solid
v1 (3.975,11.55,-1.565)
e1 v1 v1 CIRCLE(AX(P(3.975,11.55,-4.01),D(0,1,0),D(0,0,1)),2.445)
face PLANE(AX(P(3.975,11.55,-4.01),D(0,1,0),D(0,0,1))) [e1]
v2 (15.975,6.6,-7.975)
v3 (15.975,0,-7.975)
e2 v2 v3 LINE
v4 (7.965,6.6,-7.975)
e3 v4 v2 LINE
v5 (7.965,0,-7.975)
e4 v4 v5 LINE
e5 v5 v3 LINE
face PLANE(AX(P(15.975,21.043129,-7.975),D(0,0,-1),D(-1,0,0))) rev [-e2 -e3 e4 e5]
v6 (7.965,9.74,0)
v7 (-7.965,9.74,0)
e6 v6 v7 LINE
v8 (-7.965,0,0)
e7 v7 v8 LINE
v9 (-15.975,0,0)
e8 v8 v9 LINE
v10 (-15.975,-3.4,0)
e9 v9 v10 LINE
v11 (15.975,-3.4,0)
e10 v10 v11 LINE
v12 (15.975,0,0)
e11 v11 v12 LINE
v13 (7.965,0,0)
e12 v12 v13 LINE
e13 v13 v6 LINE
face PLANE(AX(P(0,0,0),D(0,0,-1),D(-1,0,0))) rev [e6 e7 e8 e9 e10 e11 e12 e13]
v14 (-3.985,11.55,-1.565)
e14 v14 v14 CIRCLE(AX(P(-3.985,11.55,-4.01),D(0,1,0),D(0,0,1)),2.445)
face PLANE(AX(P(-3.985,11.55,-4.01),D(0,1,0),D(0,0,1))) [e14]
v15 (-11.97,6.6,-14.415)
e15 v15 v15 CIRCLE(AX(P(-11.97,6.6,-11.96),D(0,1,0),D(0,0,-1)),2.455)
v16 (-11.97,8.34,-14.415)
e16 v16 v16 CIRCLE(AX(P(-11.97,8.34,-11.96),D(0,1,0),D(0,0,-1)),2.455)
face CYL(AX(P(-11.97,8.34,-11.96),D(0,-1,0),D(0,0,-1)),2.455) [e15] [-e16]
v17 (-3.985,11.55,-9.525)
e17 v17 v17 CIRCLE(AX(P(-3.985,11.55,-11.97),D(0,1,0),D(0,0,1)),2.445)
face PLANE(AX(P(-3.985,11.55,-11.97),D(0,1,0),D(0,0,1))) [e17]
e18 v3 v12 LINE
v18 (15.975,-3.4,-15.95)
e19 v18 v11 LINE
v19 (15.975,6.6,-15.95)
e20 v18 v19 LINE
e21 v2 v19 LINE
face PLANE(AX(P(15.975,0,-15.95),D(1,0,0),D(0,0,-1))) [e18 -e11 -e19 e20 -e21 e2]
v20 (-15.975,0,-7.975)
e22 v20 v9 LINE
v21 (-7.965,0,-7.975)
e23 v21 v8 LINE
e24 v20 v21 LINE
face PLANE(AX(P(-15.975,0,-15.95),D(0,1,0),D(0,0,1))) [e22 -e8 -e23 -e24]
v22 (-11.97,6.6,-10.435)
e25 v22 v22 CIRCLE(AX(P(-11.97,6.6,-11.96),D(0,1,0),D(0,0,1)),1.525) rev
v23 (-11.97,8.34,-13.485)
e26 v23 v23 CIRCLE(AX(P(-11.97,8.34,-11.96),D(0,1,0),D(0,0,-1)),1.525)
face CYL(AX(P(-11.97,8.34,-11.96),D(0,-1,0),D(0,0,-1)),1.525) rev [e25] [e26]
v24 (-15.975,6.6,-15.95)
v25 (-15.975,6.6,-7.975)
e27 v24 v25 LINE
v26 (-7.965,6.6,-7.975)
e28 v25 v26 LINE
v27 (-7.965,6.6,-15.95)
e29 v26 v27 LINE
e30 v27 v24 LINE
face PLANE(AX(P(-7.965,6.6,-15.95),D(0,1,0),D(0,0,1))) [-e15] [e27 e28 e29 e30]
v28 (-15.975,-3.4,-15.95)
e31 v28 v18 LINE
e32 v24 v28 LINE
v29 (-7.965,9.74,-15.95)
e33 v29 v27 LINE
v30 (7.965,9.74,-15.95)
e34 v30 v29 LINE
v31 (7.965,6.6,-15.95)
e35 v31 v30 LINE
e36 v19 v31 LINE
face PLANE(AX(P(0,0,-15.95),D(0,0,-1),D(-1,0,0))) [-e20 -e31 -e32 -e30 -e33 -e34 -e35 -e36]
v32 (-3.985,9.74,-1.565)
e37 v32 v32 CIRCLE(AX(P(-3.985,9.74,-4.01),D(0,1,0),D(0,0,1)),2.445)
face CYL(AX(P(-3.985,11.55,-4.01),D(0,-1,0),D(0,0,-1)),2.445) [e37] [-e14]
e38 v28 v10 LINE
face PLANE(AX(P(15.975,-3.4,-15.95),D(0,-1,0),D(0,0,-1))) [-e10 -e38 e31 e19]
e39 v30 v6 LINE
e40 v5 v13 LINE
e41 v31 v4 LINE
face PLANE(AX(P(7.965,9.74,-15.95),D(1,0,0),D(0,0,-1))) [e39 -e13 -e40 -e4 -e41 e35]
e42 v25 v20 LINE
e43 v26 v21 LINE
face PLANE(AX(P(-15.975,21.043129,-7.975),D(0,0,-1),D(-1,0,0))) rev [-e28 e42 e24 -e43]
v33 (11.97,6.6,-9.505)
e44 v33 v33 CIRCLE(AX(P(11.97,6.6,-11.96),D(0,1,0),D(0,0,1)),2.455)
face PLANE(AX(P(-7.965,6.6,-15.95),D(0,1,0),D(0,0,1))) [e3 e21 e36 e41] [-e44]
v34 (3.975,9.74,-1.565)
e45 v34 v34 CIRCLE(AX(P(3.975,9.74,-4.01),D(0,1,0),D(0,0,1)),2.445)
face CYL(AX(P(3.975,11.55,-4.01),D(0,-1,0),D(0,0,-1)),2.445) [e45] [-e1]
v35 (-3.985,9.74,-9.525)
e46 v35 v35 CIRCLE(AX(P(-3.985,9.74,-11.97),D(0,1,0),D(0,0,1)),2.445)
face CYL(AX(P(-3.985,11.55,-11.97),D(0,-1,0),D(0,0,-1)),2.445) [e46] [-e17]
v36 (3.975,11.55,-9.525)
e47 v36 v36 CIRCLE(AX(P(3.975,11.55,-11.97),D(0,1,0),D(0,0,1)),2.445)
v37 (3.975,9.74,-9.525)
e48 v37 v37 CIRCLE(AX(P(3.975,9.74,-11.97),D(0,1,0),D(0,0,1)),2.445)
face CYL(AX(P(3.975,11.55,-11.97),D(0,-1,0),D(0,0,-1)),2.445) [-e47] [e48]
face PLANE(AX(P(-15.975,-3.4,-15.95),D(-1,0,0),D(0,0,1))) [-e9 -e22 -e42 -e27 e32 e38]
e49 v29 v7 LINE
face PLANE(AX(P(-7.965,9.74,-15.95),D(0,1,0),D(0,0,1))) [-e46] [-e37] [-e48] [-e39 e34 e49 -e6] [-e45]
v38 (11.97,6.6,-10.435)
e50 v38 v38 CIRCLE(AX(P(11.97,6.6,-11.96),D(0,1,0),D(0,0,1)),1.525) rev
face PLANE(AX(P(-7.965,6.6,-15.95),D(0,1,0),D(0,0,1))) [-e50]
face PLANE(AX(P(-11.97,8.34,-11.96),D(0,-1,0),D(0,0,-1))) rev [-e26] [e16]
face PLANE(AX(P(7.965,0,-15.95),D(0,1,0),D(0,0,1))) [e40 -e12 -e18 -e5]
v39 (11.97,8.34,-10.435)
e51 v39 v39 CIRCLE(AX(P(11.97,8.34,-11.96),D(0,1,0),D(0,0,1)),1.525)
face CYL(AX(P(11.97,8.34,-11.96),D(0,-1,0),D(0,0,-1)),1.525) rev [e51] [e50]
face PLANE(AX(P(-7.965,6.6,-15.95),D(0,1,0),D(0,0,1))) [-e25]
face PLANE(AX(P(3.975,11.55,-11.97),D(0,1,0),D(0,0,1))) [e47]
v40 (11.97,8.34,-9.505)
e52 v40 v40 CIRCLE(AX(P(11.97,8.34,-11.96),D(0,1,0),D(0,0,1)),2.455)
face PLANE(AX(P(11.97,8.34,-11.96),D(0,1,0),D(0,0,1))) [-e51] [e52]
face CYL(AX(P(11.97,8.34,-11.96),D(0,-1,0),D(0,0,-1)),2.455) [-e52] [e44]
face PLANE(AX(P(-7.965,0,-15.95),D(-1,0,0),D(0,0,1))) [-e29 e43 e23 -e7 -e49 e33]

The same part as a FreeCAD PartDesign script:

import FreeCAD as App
import Part
import Sketcher
from FreeCAD import Vector


def add_polygon(sketch, points):
    """Adds a closed chain of lines whose ends are joined by coincident constraints."""
    first, n = sketch.GeometryCount, len(points)
    for a, b in zip(points, points[1:] + points[:1]):
        sketch.addGeometry(Part.LineSegment(App.Vector(*a, 0), App.Vector(*b, 0)), False)
    for i in range(n):
        sketch.addConstraint(Sketcher.Constraint("Coincident", first + i, 2, first + (i + 1) % n, 1))

doc = App.newDocument("Part")
params = doc.addObject("Spreadsheet::Sheet", "Params")
for row, (alias, value) in enumerate([
    ("sketch1_height", "3.4 mm"),
    ("sketch1_width", "15.93 mm"),
    ("sketch1_width2", "8.01 mm"),
    ("sketch1_height2", "9.74 mm"),
    ("pad1_length", "15.95 mm"),
    ("sketch2_diameter", "4.89 mm"),
    ("pad2_length", "1.81 mm"),
    ("sketch3_width", "8.01 mm"),
    ("pad3_length", "6.6 mm"),
    ("sketch4_diameter", "4.91 mm"),
    ("sketch4_diameter2", "3.05 mm"),
    ("pad4_length", "1.74 mm"),
], start=1):
    params.set(f"A{row}", alias)
    params.set(f"B{row}", "=" + value)
    params.setAlias(f"B{row}", alias)

body = doc.addObject("PartDesign::Body", "Body")

# Sketch on XY plane
sketch1 = doc.addObject("Sketcher::SketchObject", "Sketch")
body.addObject(sketch1)
sketch1.AttachmentSupport = (doc.XY_Plane, [""])
sketch1.MapMode = "FlatFace"
add_polygon(sketch1, [(8, 9.7), (-8, 9.7), (-8, 0), (-16, 0), (-16, -3.4), (16, -3.4), (16, 0), (8, 0)])  # lines 0-7
sketch1.addConstraint([
    Sketcher.Constraint("Horizontal", 0),
    Sketcher.Constraint("Vertical", 1),
    Sketcher.Constraint("Horizontal", 2),
    Sketcher.Constraint("Vertical", 3),
    Sketcher.Constraint("Horizontal", 4),
    Sketcher.Constraint("Vertical", 5),
    Sketcher.Constraint("Horizontal", 6),
    Sketcher.Constraint("Vertical", 7),
    Sketcher.Constraint("Symmetric", 2, 2, 5, 2, -1, 1),
    Sketcher.Constraint("Symmetric", 1, 2, 6, 2, -2),
    Sketcher.Constraint("DistanceY", 3, 2, 3, 1, 3.4),
    Sketcher.Constraint("DistanceX", 0, 2, 0, 1, 15.93),
    Sketcher.Constraint("DistanceX", 2, 2, 2, 1, 8.01),
    Sketcher.Constraint("DistanceY", 1, 2, 1, 1, 9.74),
])
sketch1.setExpression("Constraints[18]", "Params.sketch1_height")
sketch1.setExpression("Constraints[19]", "Params.sketch1_width")
sketch1.setExpression("Constraints[20]", "Params.sketch1_width2")
sketch1.setExpression("Constraints[21]", "Params.sketch1_height2")
pad1 = doc.addObject("PartDesign::Pad", "Pad")
body.addObject(pad1)
pad1.Profile = sketch1
pad1.setExpression("Length", "Params.pad1_length")
pad1.Reversed = True

# Sketch on XZ plane
sketch2 = doc.addObject("Sketcher::SketchObject", "Sketch001")
body.addObject(sketch2)
sketch2.AttachmentSupport = (doc.XZ_Plane, [""])
sketch2.MapMode = "FlatFace"
sketch2.AttachmentOffset = App.Placement(Vector(0, 0, -9.74), App.Rotation())
sketch2.addGeometry([
    Part.Circle(Vector(-4, -12, 0), Vector(0, 0, 1), 2.4),
    Part.Circle(Vector(4, -12, 0), Vector(0, 0, 1), 2.4),
    Part.Circle(Vector(4, -4, 0), Vector(0, 0, 1), 2.4),
    Part.Circle(Vector(-4, -4, 0), Vector(0, 0, 1), 2.4),
], False)
sketch2.addConstraint([
    Sketcher.Constraint("Equal", 0, 1),
    Sketcher.Constraint("Equal", 1, 2),
    Sketcher.Constraint("Equal", 2, 3),
    Sketcher.Constraint("Horizontal", 0, 3, 1, 3),
    Sketcher.Constraint("Horizontal", 2, 3, 3, 3),
    Sketcher.Constraint("Vertical", 1, 3, 2, 3),
    Sketcher.Constraint("Vertical", 0, 3, 3, 3),
    Sketcher.Constraint("Diameter", 0, 4.89),
    Sketcher.Constraint("DistanceY", 0, 3, -1, 1, 11.97),
    Sketcher.Constraint("DistanceY", 2, 3, -1, 1, 4.01),
    Sketcher.Constraint("DistanceX", 0, 3, 1, 3, 7.96),
    Sketcher.Constraint("DistanceX", 0, 3, -1, 1, 3.985),
])
sketch2.setExpression("Constraints[7]", "Params.sketch2_diameter")
pad2 = doc.addObject("PartDesign::Pad", "Pad001")
body.addObject(pad2)
pad2.Profile = sketch2
pad2.setExpression("Length", "Params.pad2_length")
pad2.Reversed = True

# Sketch on XZ plane
sketch3 = doc.addObject("Sketcher::SketchObject", "Sketch002")
body.addObject(sketch3)
sketch3.AttachmentSupport = (doc.XZ_Plane, [""])
sketch3.MapMode = "FlatFace"
add_polygon(sketch3, [(-16, -16), (-16, -8), (-8, -8), (-8, -16)])  # lines 0-3
add_polygon(sketch3, [(8, -16), (8, -8), (16, -8), (16, -16)])  # lines 4-7
sketch3.addConstraint([
    Sketcher.Constraint("Vertical", 0),
    Sketcher.Constraint("Horizontal", 1),
    Sketcher.Constraint("Vertical", 2),
    Sketcher.Constraint("Horizontal", 3),
    Sketcher.Constraint("Vertical", 4),
    Sketcher.Constraint("Horizontal", 5),
    Sketcher.Constraint("Vertical", 6),
    Sketcher.Constraint("Horizontal", 7),
    Sketcher.Constraint("Symmetric", 1, 2, 4, 2, -2),
    Sketcher.Constraint("Symmetric", 3, 2, 6, 2, -2),
    Sketcher.Constraint("DistanceX", 1, 1, 1, 2, 8.01),
    Sketcher.Constraint("DistanceY", 0, 1, 0, 2, 7.975),
    Sketcher.Constraint("DistanceY", 2, 2, -1, 1, 15.95),
    Sketcher.Constraint("DistanceX", 1, 2, 4, 2, 15.93),
])
sketch3.setExpression("Constraints[18]", "Params.sketch3_width")
pad3 = doc.addObject("PartDesign::Pad", "Pad002")
body.addObject(pad3)
pad3.Profile = sketch3
pad3.setExpression("Length", "Params.pad3_length")
pad3.Reversed = True

# Sketch on XZ plane
sketch4 = doc.addObject("Sketcher::SketchObject", "Sketch003")
body.addObject(sketch4)
sketch4.AttachmentSupport = (doc.XZ_Plane, [""])
sketch4.MapMode = "FlatFace"
sketch4.AttachmentOffset = App.Placement(Vector(0, 0, -6.6), App.Rotation())
sketch4.addGeometry([
    Part.Circle(Vector(12, -12, 0), Vector(0, 0, 1), 2.5),
    Part.Circle(Vector(12, -12, 0), Vector(0, 0, 1), 1.5),
    Part.Circle(Vector(-12, -12, 0), Vector(0, 0, 1), 2.5),
    Part.Circle(Vector(-12, -12, 0), Vector(0, 0, 1), 1.5),
], False)
sketch4.addConstraint([
    Sketcher.Constraint("Coincident", 1, 3, 0, 3),
    Sketcher.Constraint("Coincident", 3, 3, 2, 3),
    Sketcher.Constraint("Equal", 0, 2),
    Sketcher.Constraint("Equal", 1, 3),
    Sketcher.Constraint("Symmetric", 0, 3, 2, 3, -2),
    Sketcher.Constraint("Diameter", 0, 4.91),
    Sketcher.Constraint("Diameter", 1, 3.05),
    Sketcher.Constraint("DistanceX", -1, 1, 0, 3, 11.97),
    Sketcher.Constraint("DistanceY", 0, 3, -1, 1, 11.96),
])
sketch4.setExpression("Constraints[5]", "Params.sketch4_diameter")
sketch4.setExpression("Constraints[6]", "Params.sketch4_diameter2")
pad4 = doc.addObject("PartDesign::Pad", "Pad003")
body.addObject(pad4)
pad4.Profile = sketch4
pad4.setExpression("Length", "Params.pad4_length")
pad4.Reversed = True

doc.recompute()
